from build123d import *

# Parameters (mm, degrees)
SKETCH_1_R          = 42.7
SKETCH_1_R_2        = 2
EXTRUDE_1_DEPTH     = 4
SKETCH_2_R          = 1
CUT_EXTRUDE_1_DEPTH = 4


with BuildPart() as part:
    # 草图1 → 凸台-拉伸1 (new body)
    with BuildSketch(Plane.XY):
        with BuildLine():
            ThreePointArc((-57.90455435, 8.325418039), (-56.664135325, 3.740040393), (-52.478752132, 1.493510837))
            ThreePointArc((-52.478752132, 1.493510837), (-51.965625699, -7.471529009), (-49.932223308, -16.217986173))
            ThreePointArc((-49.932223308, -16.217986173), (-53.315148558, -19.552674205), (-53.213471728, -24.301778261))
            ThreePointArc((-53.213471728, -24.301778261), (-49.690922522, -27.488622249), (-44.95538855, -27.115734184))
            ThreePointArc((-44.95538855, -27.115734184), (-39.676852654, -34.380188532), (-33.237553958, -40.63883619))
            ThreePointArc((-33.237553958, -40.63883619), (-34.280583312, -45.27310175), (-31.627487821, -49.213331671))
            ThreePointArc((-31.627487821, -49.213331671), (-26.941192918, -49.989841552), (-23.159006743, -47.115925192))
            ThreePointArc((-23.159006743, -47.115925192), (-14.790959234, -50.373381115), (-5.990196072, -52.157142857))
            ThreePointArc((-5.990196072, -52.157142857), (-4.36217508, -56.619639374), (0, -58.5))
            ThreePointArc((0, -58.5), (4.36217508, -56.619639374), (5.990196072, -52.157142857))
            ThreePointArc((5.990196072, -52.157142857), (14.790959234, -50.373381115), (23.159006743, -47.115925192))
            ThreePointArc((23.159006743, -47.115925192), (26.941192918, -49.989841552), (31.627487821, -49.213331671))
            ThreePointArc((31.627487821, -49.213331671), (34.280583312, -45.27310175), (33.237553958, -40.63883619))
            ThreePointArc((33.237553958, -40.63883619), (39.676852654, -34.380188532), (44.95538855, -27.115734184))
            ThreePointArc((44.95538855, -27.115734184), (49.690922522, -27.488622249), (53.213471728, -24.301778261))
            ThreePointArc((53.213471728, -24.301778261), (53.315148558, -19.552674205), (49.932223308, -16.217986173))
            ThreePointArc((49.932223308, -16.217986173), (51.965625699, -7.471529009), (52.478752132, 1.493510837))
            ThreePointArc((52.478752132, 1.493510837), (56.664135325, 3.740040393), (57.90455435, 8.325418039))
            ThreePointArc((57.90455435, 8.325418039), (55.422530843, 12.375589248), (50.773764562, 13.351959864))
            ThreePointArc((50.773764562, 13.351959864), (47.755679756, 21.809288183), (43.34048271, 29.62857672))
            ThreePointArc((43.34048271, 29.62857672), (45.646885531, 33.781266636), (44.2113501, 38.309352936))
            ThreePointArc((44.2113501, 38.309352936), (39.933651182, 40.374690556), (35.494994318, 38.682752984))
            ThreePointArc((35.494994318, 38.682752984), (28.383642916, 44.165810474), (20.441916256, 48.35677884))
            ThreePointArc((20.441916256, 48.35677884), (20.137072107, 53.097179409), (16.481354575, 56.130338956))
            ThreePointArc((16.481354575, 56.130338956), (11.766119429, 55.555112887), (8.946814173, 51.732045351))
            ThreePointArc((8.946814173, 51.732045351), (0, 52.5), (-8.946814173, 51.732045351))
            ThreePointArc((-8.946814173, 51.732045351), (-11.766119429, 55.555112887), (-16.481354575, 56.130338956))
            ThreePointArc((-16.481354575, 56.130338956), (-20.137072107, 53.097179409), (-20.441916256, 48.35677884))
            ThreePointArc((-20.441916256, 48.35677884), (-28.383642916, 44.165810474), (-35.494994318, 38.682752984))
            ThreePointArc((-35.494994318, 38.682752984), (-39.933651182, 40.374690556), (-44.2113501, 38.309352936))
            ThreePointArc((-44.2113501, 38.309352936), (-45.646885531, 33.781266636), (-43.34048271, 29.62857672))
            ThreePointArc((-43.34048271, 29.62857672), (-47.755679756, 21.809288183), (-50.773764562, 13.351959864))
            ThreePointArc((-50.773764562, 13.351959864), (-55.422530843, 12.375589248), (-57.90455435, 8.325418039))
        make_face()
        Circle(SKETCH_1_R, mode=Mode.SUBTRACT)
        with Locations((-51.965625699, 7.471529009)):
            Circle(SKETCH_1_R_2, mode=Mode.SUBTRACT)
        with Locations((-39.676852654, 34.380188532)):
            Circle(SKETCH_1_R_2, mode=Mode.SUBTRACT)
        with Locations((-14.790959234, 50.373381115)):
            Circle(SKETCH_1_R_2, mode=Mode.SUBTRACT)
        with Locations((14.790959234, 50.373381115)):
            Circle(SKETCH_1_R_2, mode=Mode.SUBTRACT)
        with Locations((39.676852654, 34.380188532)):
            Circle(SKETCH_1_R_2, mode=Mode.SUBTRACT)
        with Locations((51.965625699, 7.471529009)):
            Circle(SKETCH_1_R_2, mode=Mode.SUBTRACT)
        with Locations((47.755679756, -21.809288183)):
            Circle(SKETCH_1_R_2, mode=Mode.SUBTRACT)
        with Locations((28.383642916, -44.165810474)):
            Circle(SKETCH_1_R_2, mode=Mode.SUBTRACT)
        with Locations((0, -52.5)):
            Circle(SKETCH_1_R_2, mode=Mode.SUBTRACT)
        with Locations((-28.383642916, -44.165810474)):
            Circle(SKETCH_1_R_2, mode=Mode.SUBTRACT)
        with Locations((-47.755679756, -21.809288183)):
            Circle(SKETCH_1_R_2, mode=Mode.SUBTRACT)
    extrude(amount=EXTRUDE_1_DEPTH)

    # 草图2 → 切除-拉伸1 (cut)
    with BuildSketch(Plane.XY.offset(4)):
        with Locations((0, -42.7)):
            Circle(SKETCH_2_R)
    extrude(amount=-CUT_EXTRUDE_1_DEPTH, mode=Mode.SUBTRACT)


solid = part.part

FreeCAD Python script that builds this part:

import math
import FreeCAD as App
import Part
import Sketcher

doc = App.newDocument("Part")
params = doc.addObject("Spreadsheet::Sheet", "Params")
for row, (alias, value) in enumerate([
    ("sketch1_diameter", "4 mm"),
    ("sketch1_radius", "6 mm"),
    ("sketch1_diameter2", "85.4 mm"),
    ("sketch1_radius2", "52.5 mm"),
    ("pad1_length", "4 mm"),
    ("sketch2_diameter", "2 mm"),
    ("pocket1_length", "4 mm"),
], start=1):
    params.set(f"A{row}", alias)
    params.set(f"B{row}", "=" + value)
    params.setAlias(f"B{row}", alias)

body = doc.addObject("PartDesign::Body", "Body")

# Sketch on XY plane
sketch1 = doc.addObject("Sketcher::SketchObject", "Sketch")
body.addObject(sketch1)
sketch1.AttachmentSupport = (doc.XY_Plane, [""])
sketch1.MapMode = "FlatFace"
sketch1.addGeometry(Part.ArcOfCircle(Part.Circle(App.Vector(-52, 7.5, 0), App.Vector(0, 0, 1), 6), math.radians(172), math.radians(265)), False)
sketch1.addGeometry(Part.ArcOfCircle(Part.Circle(App.Vector(0, 0, 0), App.Vector(0, 0, 1), 52.5), math.radians(178.37), math.radians(197.99)), False)
sketch1.addGeometry(Part.ArcOfCircle(Part.Circle(App.Vector(-47.8, -21.8, 0), App.Vector(0, 0, 1), 6), math.radians(111), math.radians(205)), False)
sketch1.addGeometry(Part.ArcOfCircle(Part.Circle(App.Vector(-47.8, -21.8, 0), App.Vector(0, 0, 1), 6), math.radians(-155), math.radians(-62)), False)
sketch1.addGeometry(Part.ArcOfCircle(Part.Circle(App.Vector(0, 0, 0), App.Vector(0, 0, 1), 52.5), math.radians(-148.9), math.radians(-129.28)), False)
sketch1.addGeometry(Part.ArcOfCircle(Part.Circle(App.Vector(-28.4, -44.2, 0), App.Vector(0, 0, 1), 6), math.radians(144), math.radians(237)), False)
sketch1.addGeometry(Part.ArcOfCircle(Part.Circle(App.Vector(-28.4, -44.2, 0), App.Vector(0, 0, 1), 6), math.radians(-123), math.radians(-29)), False)
sketch1.addGeometry(Part.ArcOfCircle(Part.Circle(App.Vector(0, 0, 0), App.Vector(0, 0, 1), 52.5), math.radians(-116.18), math.radians(-96.55)), False)
sketch1.addGeometry(Part.ArcOfCircle(Part.Circle(App.Vector(0, -52.5, 0), App.Vector(0, 0, 1), 6), math.radians(177), math.radians(270)), False)
sketch1.addGeometry(Part.ArcOfCircle(Part.Circle(App.Vector(0, -52.5, 0), App.Vector(0, 0, 1), 6), math.radians(-90), math.radians(3)), False)
sketch1.addGeometry(Part.ArcOfCircle(Part.Circle(App.Vector(0, 0, 0), App.Vector(0, 0, 1), 52.5), math.radians(-83.45), math.radians(-63.82)), False)
sketch1.addGeometry(Part.ArcOfCircle(Part.Circle(App.Vector(28.4, -44.2, 0), App.Vector(0, 0, 1), 6), math.radians(-151), math.radians(-57)), False)
sketch1.addGeometry(Part.ArcOfCircle(Part.Circle(App.Vector(28.4, -44.2, 0), App.Vector(0, 0, 1), 6), math.radians(-57), math.radians(36)), False)
sketch1.addGeometry(Part.ArcOfCircle(Part.Circle(App.Vector(0, 0, 0), App.Vector(0, 0, 1), 52.5), math.radians(-50.72), math.radians(-31.1)), False)
sketch1.addGeometry(Part.ArcOfCircle(Part.Circle(App.Vector(47.8, -21.8, 0), App.Vector(0, 0, 1), 6), math.radians(-118), math.radians(-25)), False)
sketch1.addGeometry(Part.ArcOfCircle(Part.Circle(App.Vector(47.8, -21.8, 0), App.Vector(0, 0, 1), 6), math.radians(-25), math.radians(69)), False)
sketch1.addGeometry(Part.ArcOfCircle(Part.Circle(App.Vector(0, 0, 0), App.Vector(0, 0, 1), 52.5), math.radians(-17.99), math.radians(1.63)), False)
sketch1.addGeometry(Part.ArcOfCircle(Part.Circle(App.Vector(52, 7.5, 0), App.Vector(0, 0, 1), 6), math.radians(-85), math.radians(8)), False)
sketch1.addGeometry(Part.ArcOfCircle(Part.Circle(App.Vector(52, 7.5, 0), App.Vector(0, 0, 1), 6), math.radians(8), math.radians(101)), False)
sketch1.addGeometry(Part.ArcOfCircle(Part.Circle(App.Vector(0, 0, 0), App.Vector(0, 0, 1), 52.5), math.radians(14.73), math.radians(34.36)), False)
sketch1.addGeometry(Part.ArcOfCircle(Part.Circle(App.Vector(39.7, 34.4, 0), App.Vector(0, 0, 1), 6), math.radians(-52), math.radians(41)), False)
sketch1.addGeometry(Part.ArcOfCircle(Part.Circle(App.Vector(39.7, 34.4, 0), App.Vector(0, 0, 1), 6), math.radians(41), math.radians(134)), False)
sketch1.addGeometry(Part.ArcOfCircle(Part.Circle(App.Vector(0, 0, 0), App.Vector(0, 0, 1), 52.5), math.radians(47.46), math.radians(67.08)), False)
sketch1.addGeometry(Part.ArcOfCircle(Part.Circle(App.Vector(14.8, 50.4, 0), App.Vector(0, 0, 1), 6), math.radians(-20), math.radians(74)), False)
sketch1.addGeometry(Part.ArcOfCircle(Part.Circle(App.Vector(14.8, 50.4, 0), App.Vector(0, 0, 1), 6), math.radians(74), math.radians(167)), False)
sketch1.addGeometry(Part.ArcOfCircle(Part.Circle(App.Vector(0, 0, 0), App.Vector(0, 0, 1), 52.5), math.radians(80.19), math.radians(99.81)), False)
sketch1.addGeometry(Part.ArcOfCircle(Part.Circle(App.Vector(-14.8, 50.4, 0), App.Vector(0, 0, 1), 6), math.radians(13), math.radians(106)), False)
sketch1.addGeometry(Part.ArcOfCircle(Part.Circle(App.Vector(-14.8, 50.4, 0), App.Vector(0, 0, 1), 6), math.radians(106), math.radians(200)), False)
sketch1.addGeometry(Part.ArcOfCircle(Part.Circle(App.Vector(0, 0, 0), App.Vector(0, 0, 1), 52.5), math.radians(112.92), math.radians(132.54)), False)
sketch1.addGeometry(Part.ArcOfCircle(Part.Circle(App.Vector(-39.7, 34.4, 0), App.Vector(0, 0, 1), 6), math.radians(46), math.radians(139)), False)
sketch1.addGeometry(Part.ArcOfCircle(Part.Circle(App.Vector(-39.7, 34.4, 0), App.Vector(0, 0, 1), 6), math.radians(139), math.radians(232)), False)
sketch1.addGeometry(Part.ArcOfCircle(Part.Circle(App.Vector(0, 0, 0), App.Vector(0, 0, 1), 52.5), math.radians(145.64), math.radians(165.27)), False)
sketch1.addGeometry(Part.ArcOfCircle(Part.Circle(App.Vector(-52, 7.5, 0), App.Vector(0, 0, 1), 6), math.radians(79), math.radians(172)), False)
sketch1.addGeometry(Part.Circle(App.Vector(-28.4, -44.2, 0), App.Vector(0, 0, 1), 2), False)
sketch1.addGeometry(Part.Circle(App.Vector(0, -52.5, 0), App.Vector(0, 0, 1), 2), False)
sketch1.addGeometry(Part.Circle(App.Vector(-47.8, -21.8, 0), App.Vector(0, 0, 1), 2), False)
sketch1.addGeometry(Part.Circle(App.Vector(28.4, -44.2, 0), App.Vector(0, 0, 1), 2), False)
sketch1.addGeometry(Part.Circle(App.Vector(47.8, -21.8, 0), App.Vector(0, 0, 1), 2), False)
sketch1.addGeometry(Part.Circle(App.Vector(-52, 7.5, 0), App.Vector(0, 0, 1), 2), False)
sketch1.addGeometry(Part.Circle(App.Vector(0, 0, 0), App.Vector(0, 0, 1), 42.7), False)
sketch1.addGeometry(Part.Circle(App.Vector(-39.7, 34.4, 0), App.Vector(0, 0, 1), 2), False)
sketch1.addGeometry(Part.Circle(App.Vector(-14.8, 50.4, 0), App.Vector(0, 0, 1), 2), False)
sketch1.addGeometry(Part.Circle(App.Vector(52, 7.5, 0), App.Vector(0, 0, 1), 2), False)
sketch1.addGeometry(Part.Circle(App.Vector(14.8, 50.4, 0), App.Vector(0, 0, 1), 2), False)
sketch1.addGeometry(Part.Circle(App.Vector(39.7, 34.4, 0), App.Vector(0, 0, 1), 2), False)
sketch1.addConstraint(Sketcher.Constraint("Coincident", 0, 2, 1, 1))
sketch1.addConstraint(Sketcher.Constraint("Coincident", 1, 2, 2, 1))
sketch1.addConstraint(Sketcher.Constraint("Tangent", 2, 2, 3, 1))
sketch1.addConstraint(Sketcher.Constraint("Coincident", 3, 2, 4, 1))
sketch1.addConstraint(Sketcher.Constraint("Coincident", 4, 2, 5, 1))
sketch1.addConstraint(Sketcher.Constraint("Tangent", 5, 2, 6, 1))
sketch1.addConstraint(Sketcher.Constraint("Coincident", 6, 2, 7, 1))
sketch1.addConstraint(Sketcher.Constraint("Coincident", 7, 2, 8, 1))
sketch1.addConstraint(Sketcher.Constraint("Tangent", 8, 2, 9, 1))
sketch1.addConstraint(Sketcher.Constraint("Coincident", 9, 2, 10, 1))
sketch1.addConstraint(Sketcher.Constraint("Coincident", 10, 2, 11, 1))
sketch1.addConstraint(Sketcher.Constraint("Tangent", 11, 2, 12, 1))
sketch1.addConstraint(Sketcher.Constraint("Coincident", 12, 2, 13, 1))
sketch1.addConstraint(Sketcher.Constraint("Coincident", 13, 2, 14, 1))
sketch1.addConstraint(Sketcher.Constraint("Tangent", 14, 2, 15, 1))
sketch1.addConstraint(Sketcher.Constraint("Coincident", 15, 2, 16, 1))
sketch1.addConstraint(Sketcher.Constraint("Coincident", 16, 2, 17, 1))
sketch1.addConstraint(Sketcher.Constraint("Tangent", 17, 2, 18, 1))
sketch1.addConstraint(Sketcher.Constraint("Coincident", 18, 2, 19, 1))
sketch1.addConstraint(Sketcher.Constraint("Coincident", 19, 2, 20, 1))
sketch1.addConstraint(Sketcher.Constraint("Tangent", 20, 2, 21, 1))
sketch1.addConstraint(Sketcher.Constraint("Coincident", 21, 2, 22, 1))
sketch1.addConstraint(Sketcher.Constraint("Coincident", 22, 2, 23, 1))
sketch1.addConstraint(Sketcher.Constraint("Tangent", 23, 2, 24, 1))
sketch1.addConstraint(Sketcher.Constraint("Coincident", 24, 2, 25, 1))
sketch1.addConstraint(Sketcher.Constraint("Coincident", 25, 2, 26, 1))
sketch1.addConstraint(Sketcher.Constraint("Tangent", 26, 2, 27, 1))
sketch1.addConstraint(Sketcher.Constraint("Coincident", 27, 2, 28, 1))
sketch1.addConstraint(Sketcher.Constraint("Coincident", 28, 2, 29, 1))
sketch1.addConstraint(Sketcher.Constraint("Tangent", 29, 2, 30, 1))
sketch1.addConstraint(Sketcher.Constraint("Coincident", 30, 2, 31, 1))
sketch1.addConstraint(Sketcher.Constraint("Coincident", 31, 2, 32, 1))
sketch1.addConstraint(Sketcher.Constraint("Tangent", 32, 2, 0, 1))
sketch1.addConstraint(Sketcher.Constraint("Coincident", 1, 3, -1, 1))
sketch1.addConstraint(Sketcher.Constraint("Coincident", 4, 3, -1, 1))
sketch1.addConstraint(Sketcher.Constraint("Coincident", 7, 3, -1, 1))
sketch1.addConstraint(Sketcher.Constraint("Coincident", 10, 3, -1, 1))
sketch1.addConstraint(Sketcher.Constraint("Coincident", 13, 3, -1, 1))
sketch1.addConstraint(Sketcher.Constraint("Coincident", 16, 3, -1, 1))
sketch1.addConstraint(Sketcher.Constraint("Coincident", 19, 3, -1, 1))
sketch1.addConstraint(Sketcher.Constraint("Coincident", 22, 3, -1, 1))
sketch1.addConstraint(Sketcher.Constraint("Coincident", 25, 3, -1, 1))
sketch1.addConstraint(Sketcher.Constraint("Coincident", 28, 3, -1, 1))
sketch1.addConstraint(Sketcher.Constraint("Coincident", 31, 3, -1, 1))
sketch1.addConstraint(Sketcher.Constraint("Coincident", 39, 3, -1, 1))
sketch1.addConstraint(Sketcher.Constraint("Coincident", 33, 3, 5, 3))
sketch1.addConstraint(Sketcher.Constraint("Coincident", 34, 3, 8, 3))
sketch1.addConstraint(Sketcher.Constraint("Coincident", 35, 3, 2, 3))
sketch1.addConstraint(Sketcher.Constraint("Coincident", 36, 3, 11, 3))
sketch1.addConstraint(Sketcher.Constraint("Coincident", 37, 3, 14, 3))
sketch1.addConstraint(Sketcher.Constraint("Coincident", 38, 3, 0, 3))
sketch1.addConstraint(Sketcher.Constraint("Coincident", 40, 3, 29, 3))
sketch1.addConstraint(Sketcher.Constraint("Coincident", 41, 3, 26, 3))
sketch1.addConstraint(Sketcher.Constraint("Coincident", 42, 3, 17, 3))
sketch1.addConstraint(Sketcher.Constraint("Coincident", 43, 3, 23, 3))
sketch1.addConstraint(Sketcher.Constraint("Coincident", 44, 3, 20, 3))
sketch1.addConstraint(Sketcher.Constraint("Equal", 0, 2))
sketch1.addConstraint(Sketcher.Constraint("Equal", 2, 3))
sketch1.addConstraint(Sketcher.Constraint("Equal", 1, 4))
sketch1.addConstraint(Sketcher.Constraint("Equal", 3, 5))
sketch1.addConstraint(Sketcher.Constraint("Equal", 5, 6))
sketch1.addConstraint(Sketcher.Constraint("Equal", 4, 7))
sketch1.addConstraint(Sketcher.Constraint("Equal", 6, 8))
sketch1.addConstraint(Sketcher.Constraint("Equal", 8, 9))
sketch1.addConstraint(Sketcher.Constraint("Equal", 7, 10))
sketch1.addConstraint(Sketcher.Constraint("Equal", 9, 11))
sketch1.addConstraint(Sketcher.Constraint("Equal", 11, 12))
sketch1.addConstraint(Sketcher.Constraint("Equal", 10, 13))
sketch1.addConstraint(Sketcher.Constraint("Equal", 12, 14))
sketch1.addConstraint(Sketcher.Constraint("Equal", 14, 15))
sketch1.addConstraint(Sketcher.Constraint("Equal", 13, 16))
sketch1.addConstraint(Sketcher.Constraint("Equal", 15, 17))
sketch1.addConstraint(Sketcher.Constraint("Equal", 17, 18))
sketch1.addConstraint(Sketcher.Constraint("Equal", 16, 19))
sketch1.addConstraint(Sketcher.Constraint("Equal", 18, 20))
sketch1.addConstraint(Sketcher.Constraint("Equal", 20, 21))
sketch1.addConstraint(Sketcher.Constraint("Equal", 19, 22))
sketch1.addConstraint(Sketcher.Constraint("Equal", 21, 23))
sketch1.addConstraint(Sketcher.Constraint("Equal", 23, 24))
sketch1.addConstraint(Sketcher.Constraint("Equal", 22, 25))
sketch1.addConstraint(Sketcher.Constraint("Equal", 24, 26))
sketch1.addConstraint(Sketcher.Constraint("Equal", 26, 27))
sketch1.addConstraint(Sketcher.Constraint("Equal", 25, 28))
sketch1.addConstraint(Sketcher.Constraint("Equal", 27, 29))
sketch1.addConstraint(Sketcher.Constraint("Equal", 29, 30))
sketch1.addConstraint(Sketcher.Constraint("Equal", 28, 31))
sketch1.addConstraint(Sketcher.Constraint("Equal", 30, 32))
sketch1.addConstraint(Sketcher.Constraint("Equal", 33, 34))
sketch1.addConstraint(Sketcher.Constraint("Equal", 34, 35))
sketch1.addConstraint(Sketcher.Constraint("Equal", 35, 36))
sketch1.addConstraint(Sketcher.Constraint("Equal", 36, 37))
sketch1.addConstraint(Sketcher.Constraint("Equal", 37, 38))
sketch1.addConstraint(Sketcher.Constraint("Equal", 38, 40))
sketch1.addConstraint(Sketcher.Constraint("Equal", 40, 41))
sketch1.addConstraint(Sketcher.Constraint("Equal", 41, 42))
sketch1.addConstraint(Sketcher.Constraint("Equal", 42, 43))
sketch1.addConstraint(Sketcher.Constraint("Equal", 43, 44))
sketch1.addConstraint(Sketcher.Constraint("Symmetric", 5, 3, 11, 3, -2))
sketch1.addConstraint(Sketcher.Constraint("Symmetric", 2, 3, 14, 3, -2))
sketch1.addConstraint(Sketcher.Constraint("Symmetric", 0, 3, 17, 3, -2))
sketch1.addConstraint(Sketcher.Constraint("Symmetric", 23, 3, 26, 3, -2))
sketch1.addConstraint(Sketcher.Constraint("Symmetric", 20, 3, 29, 3, -2))
sketch1.addConstraint(Sketcher.Constraint("PointOnObject", 8, 3, -2))
sketch1.addConstraint(Sketcher.Constraint("PointOnObject", 8, 2, -2))
sketch1.addConstraint(Sketcher.Constraint("Horizontal", 5, 2, 11, 2))
sketch1.addConstraint(Sketcher.Constraint("Horizontal", 2, 2, 14, 2))
sketch1.addConstraint(Sketcher.Constraint("Horizontal", 23, 2, 26, 2))
sketch1.addConstraint(Sketcher.Constraint("Horizontal", 20, 2, 29, 2))
sketch1.addConstraint(Sketcher.Constraint("Horizontal", 17, 2, 32, 2))
sketch1.addConstraint(Sketcher.Constraint("Diameter", 33, 4.0))
sketch1.addConstraint(Sketcher.Constraint("Radius", 0, 6.0))
sketch1.addConstraint(Sketcher.Constraint("Diameter", 39, 85.4))
sketch1.addConstraint(Sketcher.Constraint("Radius", 1, 52.5))
sketch1.addConstraint(Sketcher.Constraint("DistanceY", 8, 3, -1, 1, 52.5))
sketch1.addConstraint(Sketcher.Constraint("DistanceY", -1, 1, 0, 3, 7.471529))
sketch1.addConstraint(Sketcher.Constraint("DistanceX", 2, 3, -1, 1, 47.75568))
sketch1.addConstraint(Sketcher.Constraint("DistanceY", 2, 3, -1, 1, 21.809288))
sketch1.addConstraint(Sketcher.Constraint("DistanceY", 5, 3, -1, 1, 44.16581))
sketch1.addConstraint(Sketcher.Constraint("DistanceY", -1, 1, 20, 3, 34.380189))
sketch1.addConstraint(Sketcher.Constraint("DistanceX", -1, 1, 23, 3, 14.790959))
sketch1.addConstraint(Sketcher.Constraint("DistanceY", -1, 1, 23, 3, 50.373381))
sketch1.addConstraint(Sketcher.Constraint("DistanceY", -1, 1, 0, 2, 1.493511))
sketch1.addConstraint(Sketcher.Constraint("DistanceX", 2, 2, -1, 1, 53.213472))
sketch1.addConstraint(Sketcher.Constraint("DistanceY", 5, 2, -1, 1, 49.213332))
sketch1.addConstraint(Sketcher.Constraint("DistanceY", -1, 1, 17, 2, 8.325418))
sketch1.addConstraint(Sketcher.Constraint("DistanceX", -1, 1, 20, 2, 44.21135))
sketch1.addConstraint(Sketcher.Constraint("DistanceY", -1, 1, 23, 2, 56.130339))
sketch1.addConstraint(Sketcher.Constraint("DistanceX", 5, 3, -1, 1, 28.383643))
sketch1.addConstraint(Sketcher.Constraint("DistanceX", -1, 1, 20, 3, 39.676853))
sketch1.setExpression("Constraints[109]", "Params.sketch1_diameter")
sketch1.setExpression("Constraints[110]", "Params.sketch1_radius")
sketch1.setExpression("Constraints[111]", "Params.sketch1_diameter2")
sketch1.setExpression("Constraints[112]", "Params.sketch1_radius2")
pad1 = doc.addObject("PartDesign::Pad", "Pad")
body.addObject(pad1)
pad1.Profile = sketch1
pad1.setExpression("Length", "Params.pad1_length")

# Sketch on XY plane
sketch2 = doc.addObject("Sketcher::SketchObject", "Sketch001")
body.addObject(sketch2)
sketch2.AttachmentSupport = (doc.XY_Plane, [""])
sketch2.MapMode = "FlatFace"
sketch2.AttachmentOffset = App.Placement(App.Vector(0, 0, 4), App.Rotation())
sketch2.addGeometry(Part.Circle(App.Vector(0, -42.7, 0), App.Vector(0, 0, 1), 1), False)
sketch2.addConstraint(Sketcher.Constraint("PointOnObject", 0, 3, -2))
sketch2.addConstraint(Sketcher.Constraint("Diameter", 0, 2.0))
sketch2.addConstraint(Sketcher.Constraint("DistanceY", 0, 3, -1, 1, 42.7))
sketch2.setExpression("Constraints[1]", "Params.sketch2_diameter")
pocket1 = doc.addObject("PartDesign::Pocket", "Pocket")
body.addObject(pocket1)
pocket1.Profile = sketch2
pocket1.setExpression("Length", "Params.pocket1_length")

doc.recompute()
